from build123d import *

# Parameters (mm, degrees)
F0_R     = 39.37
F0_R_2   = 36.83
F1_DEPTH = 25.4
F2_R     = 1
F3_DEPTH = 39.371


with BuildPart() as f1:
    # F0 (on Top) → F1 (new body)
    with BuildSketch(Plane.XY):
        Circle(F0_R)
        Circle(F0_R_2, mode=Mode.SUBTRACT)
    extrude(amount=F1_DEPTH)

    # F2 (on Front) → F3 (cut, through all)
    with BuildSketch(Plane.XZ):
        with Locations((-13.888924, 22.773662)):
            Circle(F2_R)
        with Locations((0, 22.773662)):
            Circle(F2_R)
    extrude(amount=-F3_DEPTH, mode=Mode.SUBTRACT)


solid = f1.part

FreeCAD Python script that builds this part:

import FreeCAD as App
import Part
import Sketcher
from FreeCAD import Vector
Q = App.Units.Quantity

doc = App.newDocument("Part")
params = doc.addObject("Spreadsheet::Sheet", "Params")
for row, (alias, value) in enumerate([
    ("sketch1_diameter", "3.1 in"),
    ("sketch1_diameter2", "2.9 in"),
    ("pad1_length", "1 in"),
], start=1):
    params.set(f"A{row}", alias)
    params.set(f"B{row}", "=" + value)
    params.setAlias(f"B{row}", alias)

body = doc.addObject("PartDesign::Body", "Body")

# Sketch on XY plane
sketch1 = body.newObject("Sketcher::SketchObject", "Sketch")
sketch1.AttachmentSupport = (doc.getObject("XY_Plane"), [""])
sketch1.MapMode = "FlatFace"
sketch1.addGeometry([
    Part.Circle(Vector(0, 0, 0), Vector(0, 0, 1), 39),
    Part.Circle(Vector(0, 0, 0), Vector(0, 0, 1), 37),
], False)
sketch1.addConstraint([
    Sketcher.Constraint("Coincident", 0, 3, -1, 1),
    Sketcher.Constraint("Coincident", 1, 3, -1, 1),
    Sketcher.Constraint("Diameter", 0, Q("3.1 in")),
    Sketcher.Constraint("Diameter", 1, Q("2.9 in")),
])
sketch1.setExpression("Constraints[2]", "Params.sketch1_diameter")
sketch1.setExpression("Constraints[3]", "Params.sketch1_diameter2")
pad1 = body.newObject("PartDesign::Pad", "Pad")
pad1.Profile = sketch1
pad1.setExpression("Length", "Params.pad1_length")

# Sketch on XZ plane
sketch2 = body.newObject("Sketcher::SketchObject", "Sketch001")
sketch2.AttachmentSupport = (doc.getObject("XZ_Plane"), [""])
sketch2.MapMode = "FlatFace"
sketch2.addGeometry([
    Part.Circle(Vector(-13.9, 22.8, 0), Vector(0, 0, 1), 1),
    Part.Circle(Vector(0, 22.8, 0), Vector(0, 0, 1), 1),
], False)
sketch2.addConstraint([
    Sketcher.Constraint("Equal", 0, 1),
    Sketcher.Constraint("PointOnObject", 1, 3, -2),
    Sketcher.Constraint("Horizontal", 0, 3, 1, 3),
    Sketcher.Constraint("Diameter", 0, Q("2 mm")),
    Sketcher.Constraint("DistanceX", 0, 3, -1, 1, Q("13.888924 mm")),
    Sketcher.Constraint("DistanceY", -1, 1, 0, 3, Q("22.773662 mm")),
])
pocket1 = body.newObject("PartDesign::Pocket", "Pocket")
pocket1.Profile = sketch2
pocket1.Type = "ThroughAll"

doc.recompute()
